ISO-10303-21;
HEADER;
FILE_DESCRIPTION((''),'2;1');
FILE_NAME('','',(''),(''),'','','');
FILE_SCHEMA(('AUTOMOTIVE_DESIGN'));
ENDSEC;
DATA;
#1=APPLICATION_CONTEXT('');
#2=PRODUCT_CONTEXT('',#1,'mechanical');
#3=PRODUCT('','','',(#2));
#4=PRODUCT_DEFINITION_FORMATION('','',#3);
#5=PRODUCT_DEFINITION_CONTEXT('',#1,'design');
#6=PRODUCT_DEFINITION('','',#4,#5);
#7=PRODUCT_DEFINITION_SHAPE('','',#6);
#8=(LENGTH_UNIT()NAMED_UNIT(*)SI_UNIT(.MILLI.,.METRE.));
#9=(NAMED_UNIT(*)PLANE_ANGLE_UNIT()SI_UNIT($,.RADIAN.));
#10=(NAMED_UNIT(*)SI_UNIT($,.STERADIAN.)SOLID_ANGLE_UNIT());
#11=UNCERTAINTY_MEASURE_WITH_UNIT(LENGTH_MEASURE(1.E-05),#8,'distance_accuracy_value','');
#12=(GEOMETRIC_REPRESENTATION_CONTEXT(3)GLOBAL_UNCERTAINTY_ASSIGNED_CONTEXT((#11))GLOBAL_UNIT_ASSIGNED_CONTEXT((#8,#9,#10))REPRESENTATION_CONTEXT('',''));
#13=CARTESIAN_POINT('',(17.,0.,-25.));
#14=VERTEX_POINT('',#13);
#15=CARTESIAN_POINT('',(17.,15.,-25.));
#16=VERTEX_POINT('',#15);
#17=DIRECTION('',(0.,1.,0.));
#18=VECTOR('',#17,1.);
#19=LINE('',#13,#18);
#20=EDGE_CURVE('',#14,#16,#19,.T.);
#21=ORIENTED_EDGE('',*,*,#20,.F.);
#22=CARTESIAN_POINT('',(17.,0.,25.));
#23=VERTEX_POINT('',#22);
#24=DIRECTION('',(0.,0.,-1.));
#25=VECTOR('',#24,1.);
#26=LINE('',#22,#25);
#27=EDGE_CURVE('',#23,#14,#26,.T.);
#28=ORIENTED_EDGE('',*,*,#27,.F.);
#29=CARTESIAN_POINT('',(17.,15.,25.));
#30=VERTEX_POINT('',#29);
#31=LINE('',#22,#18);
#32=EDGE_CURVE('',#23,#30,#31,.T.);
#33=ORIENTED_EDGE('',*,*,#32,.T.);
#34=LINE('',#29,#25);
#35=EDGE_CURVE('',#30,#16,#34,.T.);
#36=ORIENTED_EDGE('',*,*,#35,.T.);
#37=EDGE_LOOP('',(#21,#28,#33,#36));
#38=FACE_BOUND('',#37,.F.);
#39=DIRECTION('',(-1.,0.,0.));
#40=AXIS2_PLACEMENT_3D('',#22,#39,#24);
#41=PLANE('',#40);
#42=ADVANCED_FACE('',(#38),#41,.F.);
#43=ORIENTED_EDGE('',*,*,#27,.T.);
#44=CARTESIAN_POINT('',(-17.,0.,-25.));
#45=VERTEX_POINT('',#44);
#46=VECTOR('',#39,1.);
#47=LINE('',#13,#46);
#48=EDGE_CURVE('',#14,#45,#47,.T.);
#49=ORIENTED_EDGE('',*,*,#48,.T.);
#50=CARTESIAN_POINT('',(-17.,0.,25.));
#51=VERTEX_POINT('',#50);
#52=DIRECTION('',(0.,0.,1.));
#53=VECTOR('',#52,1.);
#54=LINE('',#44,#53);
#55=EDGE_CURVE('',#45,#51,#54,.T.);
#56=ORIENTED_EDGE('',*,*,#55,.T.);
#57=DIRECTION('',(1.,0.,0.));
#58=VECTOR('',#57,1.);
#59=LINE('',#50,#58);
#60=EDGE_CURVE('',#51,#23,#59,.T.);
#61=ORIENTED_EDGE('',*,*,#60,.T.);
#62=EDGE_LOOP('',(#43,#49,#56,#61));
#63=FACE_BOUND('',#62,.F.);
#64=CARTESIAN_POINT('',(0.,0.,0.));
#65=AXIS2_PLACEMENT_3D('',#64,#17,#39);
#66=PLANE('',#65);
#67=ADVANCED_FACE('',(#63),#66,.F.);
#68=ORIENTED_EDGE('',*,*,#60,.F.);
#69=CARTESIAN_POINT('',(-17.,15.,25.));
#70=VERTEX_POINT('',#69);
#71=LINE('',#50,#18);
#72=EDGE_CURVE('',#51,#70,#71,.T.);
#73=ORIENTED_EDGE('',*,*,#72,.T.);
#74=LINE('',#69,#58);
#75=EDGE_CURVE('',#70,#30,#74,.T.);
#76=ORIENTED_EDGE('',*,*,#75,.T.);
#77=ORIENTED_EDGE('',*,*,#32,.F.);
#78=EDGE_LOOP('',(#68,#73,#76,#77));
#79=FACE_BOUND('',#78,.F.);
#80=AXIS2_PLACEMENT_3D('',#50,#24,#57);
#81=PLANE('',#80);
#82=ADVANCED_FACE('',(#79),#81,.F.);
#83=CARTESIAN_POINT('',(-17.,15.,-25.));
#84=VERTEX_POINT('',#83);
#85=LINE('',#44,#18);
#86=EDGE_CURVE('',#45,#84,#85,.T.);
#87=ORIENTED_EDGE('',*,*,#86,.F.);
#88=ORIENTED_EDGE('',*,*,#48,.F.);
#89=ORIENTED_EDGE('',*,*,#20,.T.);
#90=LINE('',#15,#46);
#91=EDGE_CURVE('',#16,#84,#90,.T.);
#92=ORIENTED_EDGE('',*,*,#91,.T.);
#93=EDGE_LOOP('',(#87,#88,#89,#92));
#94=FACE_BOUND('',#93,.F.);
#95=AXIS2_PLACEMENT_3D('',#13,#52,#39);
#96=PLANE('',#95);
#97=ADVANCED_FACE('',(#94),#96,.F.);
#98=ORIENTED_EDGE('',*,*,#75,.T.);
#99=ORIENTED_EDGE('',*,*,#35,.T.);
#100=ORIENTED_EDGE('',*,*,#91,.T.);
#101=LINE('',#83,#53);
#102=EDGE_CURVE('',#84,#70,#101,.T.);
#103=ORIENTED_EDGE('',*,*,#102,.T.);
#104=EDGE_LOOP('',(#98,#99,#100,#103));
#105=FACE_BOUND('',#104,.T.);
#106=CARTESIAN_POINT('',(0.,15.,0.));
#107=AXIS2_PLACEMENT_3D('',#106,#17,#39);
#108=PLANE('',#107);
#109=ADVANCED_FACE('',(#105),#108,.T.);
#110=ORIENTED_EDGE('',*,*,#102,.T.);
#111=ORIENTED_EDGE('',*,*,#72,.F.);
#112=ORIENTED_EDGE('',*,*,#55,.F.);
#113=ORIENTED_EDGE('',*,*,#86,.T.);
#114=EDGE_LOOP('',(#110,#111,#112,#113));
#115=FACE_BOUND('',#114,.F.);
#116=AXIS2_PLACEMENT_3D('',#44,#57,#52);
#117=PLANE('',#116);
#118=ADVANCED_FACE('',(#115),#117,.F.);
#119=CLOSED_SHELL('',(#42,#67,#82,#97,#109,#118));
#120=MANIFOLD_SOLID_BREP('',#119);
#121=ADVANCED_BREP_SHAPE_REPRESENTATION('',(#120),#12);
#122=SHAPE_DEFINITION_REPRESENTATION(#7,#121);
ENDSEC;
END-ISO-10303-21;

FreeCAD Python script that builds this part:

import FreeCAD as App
import Part
import Sketcher


def add_polygon(sketch, points):
    """Adds a closed chain of lines whose ends are joined by coincident constraints."""
    first, n = sketch.GeometryCount, len(points)
    for a, b in zip(points, points[1:] + points[:1]):
        sketch.addGeometry(Part.LineSegment(App.Vector(*a, 0), App.Vector(*b, 0)), False)
    for i in range(n):
        sketch.addConstraint(Sketcher.Constraint("Coincident", first + i, 2, first + (i + 1) % n, 1))

doc = App.newDocument("Part")
body = doc.addObject("PartDesign::Body", "Body")

# Sketch on XZ plane
sketch1 = body.newObject("Sketcher::SketchObject", "Sketch")
sketch1.AttachmentSupport = (doc.getObject("XZ_Plane"), [""])
sketch1.MapMode = "FlatFace"
add_polygon(sketch1, [(-17, -25), (-17, 25), (17, 25), (17, -25)])  # lines 0-3
sketch1.addConstraint([
    Sketcher.Constraint("Vertical", 0),
    Sketcher.Constraint("Horizontal", 1),
    Sketcher.Constraint("Vertical", 2),
    Sketcher.Constraint("Horizontal", 3),
    Sketcher.Constraint("Symmetric", 0, 2, 2, 2, -1, 1),
    Sketcher.Constraint("DistanceX", 1, 1, 1, 2, 34.0),
    Sketcher.Constraint("DistanceY", 0, 1, 0, 2, 50.0),
])
pad1 = body.newObject("PartDesign::Pad", "Pad")
pad1.Profile = sketch1
pad1.Length = 15
pad1.Reversed = True

doc.recompute()
